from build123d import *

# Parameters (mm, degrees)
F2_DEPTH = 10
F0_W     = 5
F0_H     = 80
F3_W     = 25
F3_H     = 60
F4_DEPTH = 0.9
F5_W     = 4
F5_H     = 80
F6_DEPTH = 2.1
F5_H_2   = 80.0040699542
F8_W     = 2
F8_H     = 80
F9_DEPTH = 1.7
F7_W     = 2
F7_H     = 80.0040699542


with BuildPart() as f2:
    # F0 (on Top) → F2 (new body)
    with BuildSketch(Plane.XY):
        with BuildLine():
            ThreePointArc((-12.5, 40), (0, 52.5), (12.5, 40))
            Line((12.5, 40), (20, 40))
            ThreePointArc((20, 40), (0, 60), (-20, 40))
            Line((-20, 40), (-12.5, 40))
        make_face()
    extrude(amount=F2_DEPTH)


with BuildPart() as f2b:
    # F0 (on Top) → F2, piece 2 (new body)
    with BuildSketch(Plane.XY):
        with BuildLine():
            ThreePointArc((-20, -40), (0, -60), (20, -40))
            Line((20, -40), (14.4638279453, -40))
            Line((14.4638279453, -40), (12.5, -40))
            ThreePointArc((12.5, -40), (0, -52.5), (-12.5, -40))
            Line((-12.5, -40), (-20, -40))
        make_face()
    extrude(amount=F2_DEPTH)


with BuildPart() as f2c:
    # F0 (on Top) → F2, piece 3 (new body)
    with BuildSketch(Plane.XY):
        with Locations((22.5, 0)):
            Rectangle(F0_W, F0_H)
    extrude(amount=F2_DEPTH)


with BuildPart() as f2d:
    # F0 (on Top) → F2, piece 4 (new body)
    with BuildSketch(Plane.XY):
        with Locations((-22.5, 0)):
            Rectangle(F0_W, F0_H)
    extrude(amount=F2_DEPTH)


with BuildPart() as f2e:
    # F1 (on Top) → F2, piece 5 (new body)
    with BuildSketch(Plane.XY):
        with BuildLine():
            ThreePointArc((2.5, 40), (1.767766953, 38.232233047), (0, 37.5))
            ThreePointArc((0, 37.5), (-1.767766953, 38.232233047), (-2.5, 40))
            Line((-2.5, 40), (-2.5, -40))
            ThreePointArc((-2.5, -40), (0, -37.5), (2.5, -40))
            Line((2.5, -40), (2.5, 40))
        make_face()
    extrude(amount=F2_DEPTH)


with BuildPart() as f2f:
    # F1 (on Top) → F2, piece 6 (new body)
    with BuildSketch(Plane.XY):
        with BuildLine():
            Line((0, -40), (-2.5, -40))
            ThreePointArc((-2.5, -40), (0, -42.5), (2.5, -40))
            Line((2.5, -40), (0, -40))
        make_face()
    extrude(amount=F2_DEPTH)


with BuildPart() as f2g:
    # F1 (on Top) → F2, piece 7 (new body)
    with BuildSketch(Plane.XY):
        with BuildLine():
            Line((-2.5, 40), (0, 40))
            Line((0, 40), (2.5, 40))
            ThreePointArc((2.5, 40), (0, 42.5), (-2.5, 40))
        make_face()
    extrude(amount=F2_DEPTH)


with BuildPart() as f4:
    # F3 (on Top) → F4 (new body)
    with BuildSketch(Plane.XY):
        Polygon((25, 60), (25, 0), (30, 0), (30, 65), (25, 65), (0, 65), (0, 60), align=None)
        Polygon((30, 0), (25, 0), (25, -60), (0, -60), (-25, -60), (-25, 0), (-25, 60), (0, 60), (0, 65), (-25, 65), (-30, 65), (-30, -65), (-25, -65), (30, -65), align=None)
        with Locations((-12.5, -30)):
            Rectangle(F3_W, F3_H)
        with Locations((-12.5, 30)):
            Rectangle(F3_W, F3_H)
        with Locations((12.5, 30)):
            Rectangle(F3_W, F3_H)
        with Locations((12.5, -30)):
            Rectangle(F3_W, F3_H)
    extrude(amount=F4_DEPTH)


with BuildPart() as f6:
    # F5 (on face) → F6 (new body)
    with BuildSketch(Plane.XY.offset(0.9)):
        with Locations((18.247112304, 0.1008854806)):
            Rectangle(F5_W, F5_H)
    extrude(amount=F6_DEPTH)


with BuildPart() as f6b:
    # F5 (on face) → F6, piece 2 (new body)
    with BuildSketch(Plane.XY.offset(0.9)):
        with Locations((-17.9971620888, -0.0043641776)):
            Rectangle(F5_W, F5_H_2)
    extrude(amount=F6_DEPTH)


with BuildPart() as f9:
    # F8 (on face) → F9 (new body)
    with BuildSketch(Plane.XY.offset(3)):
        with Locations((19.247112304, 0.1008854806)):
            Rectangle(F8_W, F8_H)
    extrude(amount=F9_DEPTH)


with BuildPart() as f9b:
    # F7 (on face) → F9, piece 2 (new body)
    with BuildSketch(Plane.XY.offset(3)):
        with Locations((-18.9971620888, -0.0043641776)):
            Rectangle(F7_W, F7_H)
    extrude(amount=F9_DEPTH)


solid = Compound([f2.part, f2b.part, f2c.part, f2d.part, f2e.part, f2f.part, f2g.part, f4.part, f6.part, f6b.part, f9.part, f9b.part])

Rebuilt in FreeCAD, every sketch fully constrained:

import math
import FreeCAD as App
import Part
import Sketcher

V = App.Vector
Q = App.Units.Quantity

doc = App.newDocument("Part")
body = doc.addObject("PartDesign::Body", "Body")

# Sketch on XY plane
sketch1 = body.newObject("Sketcher::SketchObject", "Sketch")
sketch1.AttachmentSupport = (doc.getObject("XY_Plane"), [""])
sketch1.MapMode = "FlatFace"
sketch1.addGeometry([
    Part.ArcOfCircle(Part.Circle(V(0, 40, 0), V(0, 0, 1), 12.5), math.radians(0), math.radians(180)),
    Part.LineSegment(V(12.5, 40, 0), V(20, 40, 0)),
    Part.ArcOfCircle(Part.Circle(V(0, 40, 0), V(0, 0, 1), 20), math.radians(0), math.radians(180)),
    Part.LineSegment(V(-20, 40, 0), V(-12.5, 40, 0)),
], False)
sketch1.addConstraint([
    Sketcher.Constraint("Coincident", 0, 1, 1, 1),
    Sketcher.Constraint("Coincident", 1, 2, 2, 1),
    Sketcher.Constraint("Coincident", 2, 2, 3, 1),
    Sketcher.Constraint("Coincident", 3, 2, 0, 2),
    Sketcher.Constraint("Horizontal", 1),
    Sketcher.Constraint("Horizontal", 3),
    Sketcher.Constraint("Coincident", 2, 3, 0, 3),
    Sketcher.Constraint("Symmetric", 1, 2, 2, 2, -2),
    Sketcher.Constraint("Horizontal", 2, 3, 0, 1),
    Sketcher.Constraint("Radius", 2, Q("20 mm")),
    Sketcher.Constraint("Radius", 0, Q("12.5 mm")),
    Sketcher.Constraint("DistanceY", -1, 1, 0, 3, Q("40 mm")),
])
pad1 = body.newObject("PartDesign::Pad", "Pad")
pad1.Profile = sketch1
pad1.Length = 10
body2 = doc.addObject("PartDesign::Body", "Body001")

# Sketch on XY plane
sketch2 = body2.newObject("Sketcher::SketchObject", "Sketch001")
sketch2.AttachmentSupport = (doc.getObject("XY_Plane001"), [""])
sketch2.MapMode = "FlatFace"
sketch2.addGeometry([
    Part.ArcOfCircle(Part.Circle(V(0, -40, 0), V(0, 0, 1), 20), math.radians(180), math.radians(360)),
    Part.LineSegment(V(20, -40, 0), V(12.5, -40, 0)),
    Part.ArcOfCircle(Part.Circle(V(0, -40, 0), V(0, 0, 1), 12.5), math.radians(180), math.radians(360)),
    Part.LineSegment(V(-12.5, -40, 0), V(-20, -40, 0)),
], False)
sketch2.addConstraint([
    Sketcher.Constraint("Coincident", 0, 2, 1, 1),
    Sketcher.Constraint("Coincident", 1, 2, 2, 2),
    Sketcher.Constraint("Coincident", 2, 1, 3, 1),
    Sketcher.Constraint("Coincident", 3, 2, 0, 1),
    Sketcher.Constraint("Horizontal", 1),
    Sketcher.Constraint("Horizontal", 3),
    Sketcher.Constraint("Coincident", 2, 3, 0, 3),
    Sketcher.Constraint("Symmetric", 1, 2, 2, 1, -2),
    Sketcher.Constraint("Horizontal", 2, 3, 0, 2),
    Sketcher.Constraint("Radius", 0, Q("20 mm")),
    Sketcher.Constraint("Radius", 2, Q("12.5 mm")),
    Sketcher.Constraint("DistanceY", 0, 3, -1, 1, Q("40 mm")),
])
pad2 = body2.newObject("PartDesign::Pad", "Pad001")
pad2.Profile = sketch2
pad2.Length = 10
body3 = doc.addObject("PartDesign::Body", "Body002")

# Sketch on XY plane
sketch3 = body3.newObject("Sketcher::SketchObject", "Sketch002")
sketch3.AttachmentSupport = (doc.getObject("XY_Plane002"), [""])
sketch3.MapMode = "FlatFace"
sketch3.addGeometry([
    Part.LineSegment(V(20, 40, 0), V(20, -40, 0)),
    Part.LineSegment(V(20, -40, 0), V(25, -40, 0)),
    Part.LineSegment(V(25, -40, 0), V(25, 40, 0)),
    Part.LineSegment(V(25, 40, 0), V(20, 40, 0)),
], False)
sketch3.addConstraint([
    Sketcher.Constraint("Coincident", 0, 2, 1, 1),
    Sketcher.Constraint("Coincident", 1, 2, 2, 1),
    Sketcher.Constraint("Coincident", 2, 2, 3, 1),
    Sketcher.Constraint("Coincident", 3, 2, 0, 1),
    Sketcher.Constraint("Vertical", 0),
    Sketcher.Constraint("Horizontal", 1),
    Sketcher.Constraint("Vertical", 2),
    Sketcher.Constraint("Horizontal", 3),
    Sketcher.Constraint("DistanceX", 1, 1, 1, 2, Q("5 mm")),
    Sketcher.Constraint("DistanceY", 0, 2, 0, 1, Q("80 mm")),
    Sketcher.Constraint("DistanceX", -1, 1, 0, 2, Q("20 mm")),
    Sketcher.Constraint("DistanceY", 0, 2, -1, 1, Q("40 mm")),
])
pad3 = body3.newObject("PartDesign::Pad", "Pad002")
pad3.Profile = sketch3
pad3.Length = 10
body4 = doc.addObject("PartDesign::Body", "Body003")

# Sketch on XY plane
sketch4 = body4.newObject("Sketcher::SketchObject", "Sketch003")
sketch4.AttachmentSupport = (doc.getObject("XY_Plane003"), [""])
sketch4.MapMode = "FlatFace"
sketch4.addGeometry([
    Part.LineSegment(V(-25, 40, 0), V(-25, -40, 0)),
    Part.LineSegment(V(-25, -40, 0), V(-20, -40, 0)),
    Part.LineSegment(V(-20, -40, 0), V(-20, 40, 0)),
    Part.LineSegment(V(-20, 40, 0), V(-25, 40, 0)),
], False)
sketch4.addConstraint([
    Sketcher.Constraint("Coincident", 0, 2, 1, 1),
    Sketcher.Constraint("Coincident", 1, 2, 2, 1),
    Sketcher.Constraint("Coincident", 2, 2, 3, 1),
    Sketcher.Constraint("Coincident", 3, 2, 0, 1),
    Sketcher.Constraint("Vertical", 0),
    Sketcher.Constraint("Horizontal", 1),
    Sketcher.Constraint("Vertical", 2),
    Sketcher.Constraint("Horizontal", 3),
    Sketcher.Constraint("DistanceX", 1, 1, 1, 2, Q("5 mm")),
    Sketcher.Constraint("DistanceY", 0, 2, 0, 1, Q("80 mm")),
    Sketcher.Constraint("DistanceX", 0, 2, -1, 1, Q("25 mm")),
    Sketcher.Constraint("DistanceY", 0, 2, -1, 1, Q("40 mm")),
])
pad4 = body4.newObject("PartDesign::Pad", "Pad003")
pad4.Profile = sketch4
pad4.Length = 10
body5 = doc.addObject("PartDesign::Body", "Body004")

# Sketch on XY plane
sketch5 = body5.newObject("Sketcher::SketchObject", "Sketch004")
sketch5.AttachmentSupport = (doc.getObject("XY_Plane004"), [""])
sketch5.MapMode = "FlatFace"
sketch5.addGeometry([
    Part.ArcOfCircle(Part.Circle(V(0, 40, 0), V(0, 0, 1), 2.5), math.radians(-90), math.radians(0)),  # 0
    Part.ArcOfCircle(Part.Circle(V(0, 40, 0), V(0, 0, 1), 2.5), math.radians(180), math.radians(270)),  # 1
    Part.LineSegment(V(-2.5, 40, 0), V(-2.5, -40, 0)),  # 2
    Part.ArcOfCircle(Part.Circle(V(0, -40, 0), V(0, 0, 1), 2.5), math.radians(0), math.radians(180)),  # 3
    Part.LineSegment(V(2.5, -40, 0), V(2.5, 40, 0)),  # 4
], False)
sketch5.addConstraint([
    Sketcher.Constraint("Tangent", 0, 1, 1, 2),
    Sketcher.Constraint("Tangent", 1, 1, 2, 1),
    Sketcher.Constraint("Tangent", 2, 2, 3, 2),
    Sketcher.Constraint("Tangent", 3, 1, 4, 1),
    Sketcher.Constraint("Tangent", 4, 2, 0, 2),
    Sketcher.Constraint("Vertical", 2),
    Sketcher.Constraint("Vertical", 4),
    Sketcher.Constraint("Equal", 0, 1),
    Sketcher.Constraint("Symmetric", 0, 3, 3, 3, -1, 1),
    Sketcher.Constraint("PointOnObject", 0, 1, -2),
    Sketcher.Constraint("Radius", 0, Q("2.5 mm")),
    Sketcher.Constraint("DistanceY", 2, 2, 2, 1, Q("80 mm")),
])
pad5 = body5.newObject("PartDesign::Pad", "Pad004")
pad5.Profile = sketch5
pad5.Length = 10
body6 = doc.addObject("PartDesign::Body", "Body005")

# Sketch on XY plane
sketch6 = body6.newObject("Sketcher::SketchObject", "Sketch005")
sketch6.AttachmentSupport = (doc.getObject("XY_Plane005"), [""])
sketch6.MapMode = "FlatFace"
sketch6.addGeometry([
    Part.ArcOfCircle(Part.Circle(V(0, -40, 0), V(0, 0, 1), 2.5), math.radians(180), math.radians(360)),
    Part.LineSegment(V(2.5, -40, 0), V(-2.5, -40, 0)),
], False)
sketch6.addConstraint([
    Sketcher.Constraint("Coincident", 0, 1, 1, 2),
    Sketcher.Constraint("Coincident", 1, 1, 0, 2),
    Sketcher.Constraint("Horizontal", 1),
    Sketcher.Constraint("PointOnObject", 0, 3, -2),
    Sketcher.Constraint("Radius", 0, Q("2.5 mm")),
    Sketcher.Constraint("DistanceY", 0, 3, -1, 1, Q("40 mm")),
    Sketcher.Constraint("DistanceY", 0, 1, -1, 1, Q("40 mm")),
])
pad6 = body6.newObject("PartDesign::Pad", "Pad005")
pad6.Profile = sketch6
pad6.Length = 10
body7 = doc.addObject("PartDesign::Body", "Body006")

# Sketch on XY plane
sketch7 = body7.newObject("Sketcher::SketchObject", "Sketch006")
sketch7.AttachmentSupport = (doc.getObject("XY_Plane006"), [""])
sketch7.MapMode = "FlatFace"
sketch7.addGeometry([
    Part.LineSegment(V(-2.5, 40, 0), V(2.5, 40, 0)),
    Part.ArcOfCircle(Part.Circle(V(0, 40, 0), V(0, 0, 1), 2.5), math.radians(0), math.radians(180)),
], False)
sketch7.addConstraint([
    Sketcher.Constraint("Coincident", 0, 1, 1, 2),
    Sketcher.Constraint("Coincident", 1, 1, 0, 2),
    Sketcher.Constraint("Horizontal", 0),
    Sketcher.Constraint("PointOnObject", 1, 3, -2),
    Sketcher.Constraint("Horizontal", 1, 3, 0, 1),
    Sketcher.Constraint("Radius", 1, Q("2.5 mm")),
    Sketcher.Constraint("DistanceY", -1, 1, 1, 3, Q("40 mm")),
])
pad7 = body7.newObject("PartDesign::Pad", "Pad006")
pad7.Profile = sketch7
pad7.Length = 10
body8 = doc.addObject("PartDesign::Body", "Body007")

# Sketch on XY plane
sketch8 = body8.newObject("Sketcher::SketchObject", "Sketch007")
sketch8.AttachmentSupport = (doc.getObject("XY_Plane007"), [""])
sketch8.MapMode = "FlatFace"
sketch8.addGeometry([
    Part.LineSegment(V(30, 65, 0), V(-30, 65, 0)),
    Part.LineSegment(V(-30, 65, 0), V(-30, -65, 0)),
    Part.LineSegment(V(-30, -65, 0), V(30, -65, 0)),
    Part.LineSegment(V(30, -65, 0), V(30, 65, 0)),
], False)
sketch8.addConstraint([
    Sketcher.Constraint("Coincident", 0, 2, 1, 1),
    Sketcher.Constraint("Coincident", 1, 2, 2, 1),
    Sketcher.Constraint("Coincident", 2, 2, 3, 1),
    Sketcher.Constraint("Coincident", 3, 2, 0, 1),
    Sketcher.Constraint("Horizontal", 0),
    Sketcher.Constraint("Vertical", 1),
    Sketcher.Constraint("Horizontal", 2),
    Sketcher.Constraint("Vertical", 3),
    Sketcher.Constraint("Symmetric", 0, 2, 2, 2, -1, 1),
    Sketcher.Constraint("DistanceX", 0, 2, 0, 1, Q("60 mm")),
    Sketcher.Constraint("DistanceY", 1, 2, 1, 1, Q("130 mm")),
])
pad8 = body8.newObject("PartDesign::Pad", "Pad007")
pad8.Profile = sketch8
pad8.Length = 0.9
body9 = doc.addObject("PartDesign::Body", "Body008")

# Sketch on XY plane
sketch9 = body9.newObject("Sketcher::SketchObject", "Sketch008")
sketch9.AttachmentSupport = (doc.getObject("XY_Plane008"), [""])
sketch9.MapMode = "FlatFace"
sketch9.AttachmentOffset = App.Placement(V(0, 0, 0.9), App.Rotation())
sketch9.addGeometry([
    Part.LineSegment(V(16.247112, 40.100885, 0), V(16.247112, -39.899115, 0)),
    Part.LineSegment(V(16.247112, -39.899115, 0), V(20.247112, -39.899115, 0)),
    Part.LineSegment(V(20.247112, -39.899115, 0), V(20.247112, 40.100885, 0)),
    Part.LineSegment(V(20.247112, 40.100885, 0), V(16.247112, 40.100885, 0)),
], False)
sketch9.addConstraint([
    Sketcher.Constraint("Coincident", 0, 2, 1, 1),
    Sketcher.Constraint("Coincident", 1, 2, 2, 1),
    Sketcher.Constraint("Coincident", 2, 2, 3, 1),
    Sketcher.Constraint("Coincident", 3, 2, 0, 1),
    Sketcher.Constraint("Vertical", 0),
    Sketcher.Constraint("Horizontal", 1),
    Sketcher.Constraint("Vertical", 2),
    Sketcher.Constraint("Horizontal", 3),
    Sketcher.Constraint("DistanceX", 1, 1, 1, 2, Q("4 mm")),
    Sketcher.Constraint("DistanceY", 0, 2, 0, 1, Q("80 mm")),
    Sketcher.Constraint("DistanceX", -1, 1, 0, 2, Q("16.247112 mm")),
    Sketcher.Constraint("DistanceY", 0, 2, -1, 1, Q("39.899115 mm")),
])
pad9 = body9.newObject("PartDesign::Pad", "Pad008")
pad9.Profile = sketch9
pad9.Length = 2.1
body10 = doc.addObject("PartDesign::Body", "Body009")

# Sketch on XY plane
sketch10 = body10.newObject("Sketcher::SketchObject", "Sketch009")
sketch10.AttachmentSupport = (doc.getObject("XY_Plane009"), [""])
sketch10.MapMode = "FlatFace"
sketch10.AttachmentOffset = App.Placement(V(0, 0, 0.9), App.Rotation())
sketch10.addGeometry([
    Part.LineSegment(V(-19.997162, 39.997671, 0), V(-19.997162, -40.006399, 0)),
    Part.LineSegment(V(-19.997162, -40.006399, 0), V(-15.997162, -40.006399, 0)),
    Part.LineSegment(V(-15.997162, -40.006399, 0), V(-15.997162, 39.997671, 0)),
    Part.LineSegment(V(-15.997162, 39.997671, 0), V(-19.997162, 39.997671, 0)),
], False)
sketch10.addConstraint([
    Sketcher.Constraint("Coincident", 0, 2, 1, 1),
    Sketcher.Constraint("Coincident", 1, 2, 2, 1),
    Sketcher.Constraint("Coincident", 2, 2, 3, 1),
    Sketcher.Constraint("Coincident", 3, 2, 0, 1),
    Sketcher.Constraint("Vertical", 0),
    Sketcher.Constraint("Horizontal", 1),
    Sketcher.Constraint("Vertical", 2),
    Sketcher.Constraint("Horizontal", 3),
    Sketcher.Constraint("DistanceX", 1, 1, 1, 2, Q("4 mm")),
    Sketcher.Constraint("DistanceY", 0, 2, 0, 1, Q("80.00407 mm")),
    Sketcher.Constraint("DistanceY", 0, 2, -1, 1, Q("40.006399 mm")),
    Sketcher.Constraint("DistanceX", 0, 2, -1, 1, Q("19.997162 mm")),
])
pad10 = body10.newObject("PartDesign::Pad", "Pad009")
pad10.Profile = sketch10
pad10.Length = 2.1
body11 = doc.addObject("PartDesign::Body", "Body010")

# Sketch on XY plane
sketch11 = body11.newObject("Sketcher::SketchObject", "Sketch010")
sketch11.AttachmentSupport = (doc.getObject("XY_Plane010"), [""])
sketch11.MapMode = "FlatFace"
sketch11.AttachmentOffset = App.Placement(V(0, 0, 3), App.Rotation())
sketch11.addGeometry([
    Part.LineSegment(V(18.247112, 40.100885, 0), V(18.247112, -39.899115, 0)),
    Part.LineSegment(V(18.247112, -39.899115, 0), V(20.247112, -39.899115, 0)),
    Part.LineSegment(V(20.247112, -39.899115, 0), V(20.247112, 40.100885, 0)),
    Part.LineSegment(V(20.247112, 40.100885, 0), V(18.247112, 40.100885, 0)),
], False)
sketch11.addConstraint([
    Sketcher.Constraint("Coincident", 0, 2, 1, 1),
    Sketcher.Constraint("Coincident", 1, 2, 2, 1),
    Sketcher.Constraint("Coincident", 2, 2, 3, 1),
    Sketcher.Constraint("Coincident", 3, 2, 0, 1),
    Sketcher.Constraint("Vertical", 0),
    Sketcher.Constraint("Horizontal", 1),
    Sketcher.Constraint("Vertical", 2),
    Sketcher.Constraint("Horizontal", 3),
    Sketcher.Constraint("DistanceX", 1, 1, 1, 2, Q("2 mm")),
    Sketcher.Constraint("DistanceY", 0, 2, 0, 1, Q("80 mm")),
    Sketcher.Constraint("DistanceX", -1, 1, 0, 2, Q("18.247112 mm")),
    Sketcher.Constraint("DistanceY", 0, 2, -1, 1, Q("39.899115 mm")),
])
pad11 = body11.newObject("PartDesign::Pad", "Pad010")
pad11.Profile = sketch11
pad11.Length = 1.7
body12 = doc.addObject("PartDesign::Body", "Body011")

# Sketch on XY plane
sketch12 = body12.newObject("Sketcher::SketchObject", "Sketch011")
sketch12.AttachmentSupport = (doc.getObject("XY_Plane011"), [""])
sketch12.MapMode = "FlatFace"
sketch12.AttachmentOffset = App.Placement(V(0, 0, 3), App.Rotation())
sketch12.addGeometry([
    Part.LineSegment(V(-19.997162, 39.997671, 0), V(-19.997162, -40.006399, 0)),
    Part.LineSegment(V(-19.997162, -40.006399, 0), V(-17.997162, -40.006399, 0)),
    Part.LineSegment(V(-17.997162, -40.006399, 0), V(-17.997162, 39.997671, 0)),
    Part.LineSegment(V(-17.997162, 39.997671, 0), V(-19.997162, 39.997671, 0)),
], False)
sketch12.addConstraint([
    Sketcher.Constraint("Coincident", 0, 2, 1, 1),
    Sketcher.Constraint("Coincident", 1, 2, 2, 1),
    Sketcher.Constraint("Coincident", 2, 2, 3, 1),
    Sketcher.Constraint("Coincident", 3, 2, 0, 1),
    Sketcher.Constraint("Vertical", 0),
    Sketcher.Constraint("Horizontal", 1),
    Sketcher.Constraint("Vertical", 2),
    Sketcher.Constraint("Horizontal", 3),
    Sketcher.Constraint("DistanceX", 1, 1, 1, 2, Q("2 mm")),
    Sketcher.Constraint("DistanceY", 0, 2, 0, 1, Q("80.00407 mm")),
    Sketcher.Constraint("DistanceY", 0, 2, -1, 1, Q("40.006399 mm")),
    Sketcher.Constraint("DistanceX", 0, 2, -1, 1, Q("19.997162 mm")),
])
pad12 = body12.newObject("PartDesign::Pad", "Pad011")
pad12.Profile = sketch12
pad12.Length = 1.7

doc.recompute()
